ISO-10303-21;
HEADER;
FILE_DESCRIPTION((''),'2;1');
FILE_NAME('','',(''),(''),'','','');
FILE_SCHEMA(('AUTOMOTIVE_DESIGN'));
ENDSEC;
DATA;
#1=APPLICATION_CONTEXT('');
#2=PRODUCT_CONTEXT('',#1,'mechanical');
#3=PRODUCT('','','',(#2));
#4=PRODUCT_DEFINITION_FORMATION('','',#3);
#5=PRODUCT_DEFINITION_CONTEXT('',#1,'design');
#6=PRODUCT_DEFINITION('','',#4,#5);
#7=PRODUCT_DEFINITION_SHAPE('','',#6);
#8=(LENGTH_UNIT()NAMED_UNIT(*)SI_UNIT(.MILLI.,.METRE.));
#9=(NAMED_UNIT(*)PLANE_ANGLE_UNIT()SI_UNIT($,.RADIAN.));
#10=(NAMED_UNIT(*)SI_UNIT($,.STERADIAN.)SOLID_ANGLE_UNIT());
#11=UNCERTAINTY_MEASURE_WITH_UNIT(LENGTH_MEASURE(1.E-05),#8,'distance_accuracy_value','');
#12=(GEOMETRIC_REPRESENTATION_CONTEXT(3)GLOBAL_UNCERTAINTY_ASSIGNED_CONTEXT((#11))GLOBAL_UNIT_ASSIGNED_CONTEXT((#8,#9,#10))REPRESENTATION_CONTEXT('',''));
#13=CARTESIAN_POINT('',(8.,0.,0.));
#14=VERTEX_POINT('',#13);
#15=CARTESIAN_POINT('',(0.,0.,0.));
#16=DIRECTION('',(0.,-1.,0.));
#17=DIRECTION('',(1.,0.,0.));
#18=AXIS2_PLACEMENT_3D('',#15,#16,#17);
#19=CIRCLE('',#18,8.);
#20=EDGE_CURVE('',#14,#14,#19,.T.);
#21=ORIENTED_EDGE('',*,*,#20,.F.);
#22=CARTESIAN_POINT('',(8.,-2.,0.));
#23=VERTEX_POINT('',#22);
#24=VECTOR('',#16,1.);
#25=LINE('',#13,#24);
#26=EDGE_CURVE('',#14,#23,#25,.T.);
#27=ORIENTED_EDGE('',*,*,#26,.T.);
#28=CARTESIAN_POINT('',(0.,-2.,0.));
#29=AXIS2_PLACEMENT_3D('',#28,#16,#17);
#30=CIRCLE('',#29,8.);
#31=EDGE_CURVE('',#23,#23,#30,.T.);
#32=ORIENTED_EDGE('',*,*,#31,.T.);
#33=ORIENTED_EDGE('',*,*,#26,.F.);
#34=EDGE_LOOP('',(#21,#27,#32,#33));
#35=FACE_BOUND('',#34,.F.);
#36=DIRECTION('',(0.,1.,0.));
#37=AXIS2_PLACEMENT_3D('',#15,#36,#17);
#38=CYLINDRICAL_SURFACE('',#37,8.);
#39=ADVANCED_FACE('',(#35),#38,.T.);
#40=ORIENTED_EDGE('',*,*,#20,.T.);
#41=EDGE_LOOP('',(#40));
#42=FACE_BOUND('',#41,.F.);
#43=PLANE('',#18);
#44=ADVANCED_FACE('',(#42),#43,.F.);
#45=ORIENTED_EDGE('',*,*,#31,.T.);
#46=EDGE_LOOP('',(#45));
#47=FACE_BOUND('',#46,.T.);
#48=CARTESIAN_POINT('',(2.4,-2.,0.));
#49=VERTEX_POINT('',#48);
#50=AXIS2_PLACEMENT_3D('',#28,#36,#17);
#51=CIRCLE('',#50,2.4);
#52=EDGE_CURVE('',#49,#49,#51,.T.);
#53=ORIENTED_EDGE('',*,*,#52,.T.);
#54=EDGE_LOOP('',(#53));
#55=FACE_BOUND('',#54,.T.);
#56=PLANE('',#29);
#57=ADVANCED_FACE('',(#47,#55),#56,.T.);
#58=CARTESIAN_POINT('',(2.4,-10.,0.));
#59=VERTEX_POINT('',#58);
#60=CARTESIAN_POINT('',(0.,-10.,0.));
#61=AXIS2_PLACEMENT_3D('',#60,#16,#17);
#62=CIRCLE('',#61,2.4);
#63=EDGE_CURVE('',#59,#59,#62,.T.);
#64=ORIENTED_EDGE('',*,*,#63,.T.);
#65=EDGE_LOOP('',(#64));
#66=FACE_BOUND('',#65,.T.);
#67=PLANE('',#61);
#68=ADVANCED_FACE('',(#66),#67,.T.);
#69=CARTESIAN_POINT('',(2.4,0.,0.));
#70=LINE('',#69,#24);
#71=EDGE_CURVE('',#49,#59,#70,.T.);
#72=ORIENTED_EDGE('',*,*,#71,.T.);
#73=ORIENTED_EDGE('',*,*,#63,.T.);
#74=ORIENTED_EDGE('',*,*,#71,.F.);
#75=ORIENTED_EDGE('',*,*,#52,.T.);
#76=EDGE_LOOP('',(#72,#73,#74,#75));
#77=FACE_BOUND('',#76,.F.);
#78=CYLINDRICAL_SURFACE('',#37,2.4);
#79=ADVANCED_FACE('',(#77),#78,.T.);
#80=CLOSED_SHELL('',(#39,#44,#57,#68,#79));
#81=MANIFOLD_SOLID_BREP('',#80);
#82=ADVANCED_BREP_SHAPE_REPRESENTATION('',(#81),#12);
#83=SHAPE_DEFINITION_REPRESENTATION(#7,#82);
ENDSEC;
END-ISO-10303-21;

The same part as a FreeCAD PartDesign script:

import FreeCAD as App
import Part
import Sketcher

V = App.Vector
Q = App.Units.Quantity

doc = App.newDocument("Part")
body = doc.addObject("PartDesign::Body", "Body")

sketch1 = body.newObject("Sketcher::SketchObject", "Sketch")
sketch1.AttachmentSupport = (doc.getObject("XY_Plane"), [""])
sketch1.MapMode = "FlatFace"
sketch1.addGeometry(Part.Circle(V(0, 0, 0), V(0, 0, 1), 2.4), False)
sketch1.addConstraint(Sketcher.Constraint("Coincident", 0, 3, -1, 1))
sketch1.addConstraint(Sketcher.Constraint("Diameter", 0, Q("4.8 mm")))
pad1 = body.newObject("PartDesign::Pad", "Pad")
pad1.Profile = sketch1
pad1.Length = 10
body2 = doc.addObject("PartDesign::Body", "Body001")
doc.recompute()

body.Placement = App.Placement(V(0, 0, 0), App.Rotation(V(1, 0, 0), 90))
boolean = body2.newObject("PartDesign::Boolean", "Boolean")
boolean.Type = "Fuse"
boolean.addObjects([body])
body3 = doc.addObject("PartDesign::Body", "Body002")

sketch2 = body3.newObject("Sketcher::SketchObject", "Sketch001")
sketch2.AttachmentSupport = (doc.getObject("XY_Plane002"), [""])
sketch2.MapMode = "FlatFace"
sketch2.addGeometry(Part.Circle(V(0, 0, 0), V(0, 0, 1), 8), False)
sketch2.addConstraint(Sketcher.Constraint("Coincident", 0, 3, -1, 1))
sketch2.addConstraint(Sketcher.Constraint("Diameter", 0, Q("16 mm")))
pad2 = body3.newObject("PartDesign::Pad", "Pad001")
pad2.Profile = sketch2
pad2.Length = 2
body4 = doc.addObject("PartDesign::Body", "Body003")
doc.recompute()

body3.Placement = App.Placement(V(0, 0, 0), App.Rotation(V(1, 0, 0), 90))
boolean2 = body4.newObject("PartDesign::Boolean", "Boolean001")
boolean2.Type = "Fuse"
boolean2.addObjects([body3])
doc.recompute()

boolean3 = body4.newObject("PartDesign::Boolean", "Boolean002")
boolean3.Type = "Fuse"
boolean3.addObjects([body2])

doc.recompute()
